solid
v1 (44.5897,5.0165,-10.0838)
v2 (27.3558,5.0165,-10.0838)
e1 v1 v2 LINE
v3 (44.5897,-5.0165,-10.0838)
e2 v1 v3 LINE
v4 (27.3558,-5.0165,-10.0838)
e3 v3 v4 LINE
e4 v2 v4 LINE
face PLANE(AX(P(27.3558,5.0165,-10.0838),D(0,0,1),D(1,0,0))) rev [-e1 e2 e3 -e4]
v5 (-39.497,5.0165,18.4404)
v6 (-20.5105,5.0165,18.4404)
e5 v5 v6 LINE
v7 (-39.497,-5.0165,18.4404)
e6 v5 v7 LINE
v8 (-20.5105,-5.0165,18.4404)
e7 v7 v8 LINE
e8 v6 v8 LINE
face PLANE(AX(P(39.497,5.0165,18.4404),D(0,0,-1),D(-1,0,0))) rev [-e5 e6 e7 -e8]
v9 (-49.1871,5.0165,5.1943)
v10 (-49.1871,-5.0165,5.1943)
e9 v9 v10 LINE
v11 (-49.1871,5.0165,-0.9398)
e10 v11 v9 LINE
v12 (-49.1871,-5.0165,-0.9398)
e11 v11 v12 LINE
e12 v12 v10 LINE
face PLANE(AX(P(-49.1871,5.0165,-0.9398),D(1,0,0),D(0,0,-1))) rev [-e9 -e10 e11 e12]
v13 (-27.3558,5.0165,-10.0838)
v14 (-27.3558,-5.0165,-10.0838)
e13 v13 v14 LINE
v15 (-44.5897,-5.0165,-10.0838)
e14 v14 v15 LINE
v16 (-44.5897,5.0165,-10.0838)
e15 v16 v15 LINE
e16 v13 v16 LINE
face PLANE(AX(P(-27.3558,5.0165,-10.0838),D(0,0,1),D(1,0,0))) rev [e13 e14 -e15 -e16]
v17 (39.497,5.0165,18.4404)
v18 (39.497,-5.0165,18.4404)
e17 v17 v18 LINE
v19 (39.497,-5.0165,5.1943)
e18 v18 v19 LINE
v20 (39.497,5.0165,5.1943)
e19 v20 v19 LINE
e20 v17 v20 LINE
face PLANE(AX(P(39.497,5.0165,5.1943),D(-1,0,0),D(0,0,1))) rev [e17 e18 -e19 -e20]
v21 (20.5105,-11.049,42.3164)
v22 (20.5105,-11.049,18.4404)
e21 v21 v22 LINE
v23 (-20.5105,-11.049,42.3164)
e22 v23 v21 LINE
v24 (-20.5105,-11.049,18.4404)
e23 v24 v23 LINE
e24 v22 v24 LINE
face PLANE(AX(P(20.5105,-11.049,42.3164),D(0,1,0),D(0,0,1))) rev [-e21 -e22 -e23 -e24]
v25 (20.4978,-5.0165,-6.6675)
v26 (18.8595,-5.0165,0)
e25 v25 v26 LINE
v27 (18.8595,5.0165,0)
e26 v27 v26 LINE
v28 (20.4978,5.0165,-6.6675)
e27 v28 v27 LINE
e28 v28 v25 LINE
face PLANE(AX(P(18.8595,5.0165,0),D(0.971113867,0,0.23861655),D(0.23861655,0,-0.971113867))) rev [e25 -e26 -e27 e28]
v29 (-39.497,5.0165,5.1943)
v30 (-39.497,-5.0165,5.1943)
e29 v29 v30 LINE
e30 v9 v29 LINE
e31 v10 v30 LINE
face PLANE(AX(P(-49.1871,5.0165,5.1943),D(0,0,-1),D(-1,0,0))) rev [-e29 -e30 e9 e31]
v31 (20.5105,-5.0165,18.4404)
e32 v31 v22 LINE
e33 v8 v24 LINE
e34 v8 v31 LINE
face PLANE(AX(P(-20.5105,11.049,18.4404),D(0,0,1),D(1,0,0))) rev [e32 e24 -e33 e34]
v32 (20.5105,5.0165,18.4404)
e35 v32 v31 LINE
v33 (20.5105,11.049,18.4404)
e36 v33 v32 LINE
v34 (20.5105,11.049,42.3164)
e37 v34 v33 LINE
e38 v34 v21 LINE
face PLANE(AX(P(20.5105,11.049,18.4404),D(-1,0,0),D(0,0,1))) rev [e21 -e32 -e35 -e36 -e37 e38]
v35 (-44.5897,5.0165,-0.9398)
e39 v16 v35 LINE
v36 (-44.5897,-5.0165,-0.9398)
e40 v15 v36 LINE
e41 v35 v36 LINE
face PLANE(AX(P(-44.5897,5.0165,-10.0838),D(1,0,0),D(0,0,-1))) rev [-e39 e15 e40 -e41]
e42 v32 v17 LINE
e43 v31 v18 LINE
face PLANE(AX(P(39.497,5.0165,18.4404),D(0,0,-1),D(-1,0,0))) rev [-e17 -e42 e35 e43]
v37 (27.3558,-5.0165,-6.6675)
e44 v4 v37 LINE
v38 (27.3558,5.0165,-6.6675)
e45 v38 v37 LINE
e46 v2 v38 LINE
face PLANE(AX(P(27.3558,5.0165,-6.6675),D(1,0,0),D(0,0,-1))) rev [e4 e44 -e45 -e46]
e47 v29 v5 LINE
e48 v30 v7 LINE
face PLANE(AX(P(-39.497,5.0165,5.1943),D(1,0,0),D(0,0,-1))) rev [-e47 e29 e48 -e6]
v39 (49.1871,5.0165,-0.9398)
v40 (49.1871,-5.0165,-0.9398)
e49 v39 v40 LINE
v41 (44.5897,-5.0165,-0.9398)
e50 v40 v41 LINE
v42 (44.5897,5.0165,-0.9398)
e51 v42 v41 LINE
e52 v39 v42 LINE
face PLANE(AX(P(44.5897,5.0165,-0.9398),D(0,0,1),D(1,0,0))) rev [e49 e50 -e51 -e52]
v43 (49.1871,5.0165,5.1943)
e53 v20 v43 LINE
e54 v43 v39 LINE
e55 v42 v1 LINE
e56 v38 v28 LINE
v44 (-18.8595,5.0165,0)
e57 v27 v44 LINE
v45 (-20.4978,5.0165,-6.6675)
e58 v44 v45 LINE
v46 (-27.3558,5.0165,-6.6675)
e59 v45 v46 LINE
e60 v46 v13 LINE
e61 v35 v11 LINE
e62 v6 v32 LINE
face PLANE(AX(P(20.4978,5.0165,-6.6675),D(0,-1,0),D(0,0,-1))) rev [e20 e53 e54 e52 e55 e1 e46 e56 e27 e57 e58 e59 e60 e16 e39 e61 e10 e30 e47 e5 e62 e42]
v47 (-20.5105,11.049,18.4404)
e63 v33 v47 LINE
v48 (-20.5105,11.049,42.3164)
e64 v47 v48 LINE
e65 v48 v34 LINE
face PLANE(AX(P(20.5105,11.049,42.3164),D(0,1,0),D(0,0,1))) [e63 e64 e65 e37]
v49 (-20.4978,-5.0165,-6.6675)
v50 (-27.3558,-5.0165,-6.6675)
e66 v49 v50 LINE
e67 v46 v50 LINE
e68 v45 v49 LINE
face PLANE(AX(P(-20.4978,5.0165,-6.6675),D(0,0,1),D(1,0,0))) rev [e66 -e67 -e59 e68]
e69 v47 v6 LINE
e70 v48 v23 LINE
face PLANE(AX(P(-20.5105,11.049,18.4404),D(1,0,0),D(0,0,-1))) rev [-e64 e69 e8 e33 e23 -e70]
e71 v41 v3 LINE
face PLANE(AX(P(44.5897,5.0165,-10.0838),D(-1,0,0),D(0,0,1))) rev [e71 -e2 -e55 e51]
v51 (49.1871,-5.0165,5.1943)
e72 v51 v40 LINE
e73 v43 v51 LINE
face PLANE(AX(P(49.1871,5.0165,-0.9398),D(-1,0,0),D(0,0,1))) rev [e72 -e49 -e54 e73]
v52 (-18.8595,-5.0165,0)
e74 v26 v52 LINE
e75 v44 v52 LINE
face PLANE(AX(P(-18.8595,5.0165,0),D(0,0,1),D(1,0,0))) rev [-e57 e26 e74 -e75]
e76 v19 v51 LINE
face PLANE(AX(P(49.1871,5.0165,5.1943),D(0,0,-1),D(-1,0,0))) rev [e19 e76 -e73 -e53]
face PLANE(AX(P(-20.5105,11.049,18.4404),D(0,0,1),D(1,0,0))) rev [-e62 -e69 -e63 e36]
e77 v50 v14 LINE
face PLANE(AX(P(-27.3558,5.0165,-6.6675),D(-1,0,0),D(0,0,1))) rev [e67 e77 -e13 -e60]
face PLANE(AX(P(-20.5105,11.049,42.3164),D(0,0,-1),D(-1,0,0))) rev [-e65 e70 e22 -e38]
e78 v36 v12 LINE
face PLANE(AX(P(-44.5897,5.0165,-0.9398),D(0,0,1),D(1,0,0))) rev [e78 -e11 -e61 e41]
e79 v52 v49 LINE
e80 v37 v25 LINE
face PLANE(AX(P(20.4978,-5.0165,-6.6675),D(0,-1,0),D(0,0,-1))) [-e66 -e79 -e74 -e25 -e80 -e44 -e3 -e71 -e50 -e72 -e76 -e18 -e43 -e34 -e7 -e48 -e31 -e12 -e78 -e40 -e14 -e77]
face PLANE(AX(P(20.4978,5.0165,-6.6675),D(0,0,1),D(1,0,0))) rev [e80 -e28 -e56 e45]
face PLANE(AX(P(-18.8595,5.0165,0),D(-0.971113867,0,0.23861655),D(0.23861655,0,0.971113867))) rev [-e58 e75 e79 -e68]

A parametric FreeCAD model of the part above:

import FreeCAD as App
import Part
import Sketcher
from FreeCAD import Vector
Q = App.Units.Quantity

doc = App.newDocument("Part")
body = doc.addObject("PartDesign::Body", "Body")

sketch1 = body.newObject("Sketcher::SketchObject", "Sketch")
sketch1.AttachmentSupport = (doc.getObject("XZ_Plane"), [""])
sketch1.MapMode = "FlatFace"
sketch1.addGeometry(Part.LineSegment(Vector(18.8595, 0, 0), Vector(-18.8595, 0, 0)), False)
sketch1.addGeometry(Part.LineSegment(Vector(-18.8595, 0, 0), Vector(-20.4978, -6.6675, 0)), False)
sketch1.addGeometry(Part.LineSegment(Vector(-20.4978, -6.6675, 0), Vector(-27.3558, -6.6675, 0)), False)
sketch1.addGeometry(Part.LineSegment(Vector(-27.3558, -6.6675, 0), Vector(-27.3558, -10.0838, 0)), False)
sketch1.addGeometry(Part.LineSegment(Vector(-27.3558, -10.0838, 0), Vector(-44.5897, -10.0838, 0)), False)
sketch1.addGeometry(Part.LineSegment(Vector(-44.5897, -10.0838, 0), Vector(-44.5897, -0.9398, 0)), False)
sketch1.addGeometry(Part.LineSegment(Vector(-44.5897, -0.9398, 0), Vector(-49.1871, -0.9398, 0)), False)
sketch1.addGeometry(Part.LineSegment(Vector(-49.1871, -0.9398, 0), Vector(-49.1871, 5.1943, 0)), False)
sketch1.addGeometry(Part.LineSegment(Vector(-49.1871, 5.1943, 0), Vector(-39.497, 5.1943, 0)), False)
sketch1.addGeometry(Part.LineSegment(Vector(-39.497, 5.1943, 0), Vector(-39.497, 18.4404, 0)), False)
sketch1.addGeometry(Part.LineSegment(Vector(-39.497, 18.4404, 0), Vector(39.497, 18.4404, 0)), False)
sketch1.addGeometry(Part.LineSegment(Vector(39.497, 18.4404, 0), Vector(39.497, 5.1943, 0)), False)
sketch1.addGeometry(Part.LineSegment(Vector(39.497, 5.1943, 0), Vector(49.1871, 5.1943, 0)), False)
sketch1.addGeometry(Part.LineSegment(Vector(49.1871, 5.1943, 0), Vector(49.1871, -0.9398, 0)), False)
sketch1.addGeometry(Part.LineSegment(Vector(49.1871, -0.9398, 0), Vector(44.5897, -0.9398, 0)), False)
sketch1.addGeometry(Part.LineSegment(Vector(44.5897, -0.9398, 0), Vector(44.5897, -10.0838, 0)), False)
sketch1.addGeometry(Part.LineSegment(Vector(44.5897, -10.0838, 0), Vector(27.3558, -10.0838, 0)), False)
sketch1.addGeometry(Part.LineSegment(Vector(27.3558, -10.0838, 0), Vector(27.3558, -6.6675, 0)), False)
sketch1.addGeometry(Part.LineSegment(Vector(27.3558, -6.6675, 0), Vector(20.4978, -6.6675, 0)), False)
sketch1.addGeometry(Part.LineSegment(Vector(20.4978, -6.6675, 0), Vector(18.8595, 0, 0)), False)
sketch1.addConstraint(Sketcher.Constraint("Coincident", 0, 2, 1, 1))
sketch1.addConstraint(Sketcher.Constraint("Coincident", 1, 2, 2, 1))
sketch1.addConstraint(Sketcher.Constraint("Coincident", 2, 2, 3, 1))
sketch1.addConstraint(Sketcher.Constraint("Coincident", 3, 2, 4, 1))
sketch1.addConstraint(Sketcher.Constraint("Coincident", 4, 2, 5, 1))
sketch1.addConstraint(Sketcher.Constraint("Coincident", 5, 2, 6, 1))
sketch1.addConstraint(Sketcher.Constraint("Coincident", 6, 2, 7, 1))
sketch1.addConstraint(Sketcher.Constraint("Coincident", 7, 2, 8, 1))
sketch1.addConstraint(Sketcher.Constraint("Coincident", 8, 2, 9, 1))
sketch1.addConstraint(Sketcher.Constraint("Coincident", 9, 2, 10, 1))
sketch1.addConstraint(Sketcher.Constraint("Coincident", 10, 2, 11, 1))
sketch1.addConstraint(Sketcher.Constraint("Coincident", 11, 2, 12, 1))
sketch1.addConstraint(Sketcher.Constraint("Coincident", 12, 2, 13, 1))
sketch1.addConstraint(Sketcher.Constraint("Coincident", 13, 2, 14, 1))
sketch1.addConstraint(Sketcher.Constraint("Coincident", 14, 2, 15, 1))
sketch1.addConstraint(Sketcher.Constraint("Coincident", 15, 2, 16, 1))
sketch1.addConstraint(Sketcher.Constraint("Coincident", 16, 2, 17, 1))
sketch1.addConstraint(Sketcher.Constraint("Coincident", 17, 2, 18, 1))
sketch1.addConstraint(Sketcher.Constraint("Coincident", 18, 2, 19, 1))
sketch1.addConstraint(Sketcher.Constraint("Coincident", 19, 2, 0, 1))
sketch1.addConstraint(Sketcher.Constraint("Horizontal", 0))
sketch1.addConstraint(Sketcher.Constraint("Horizontal", 2))
sketch1.addConstraint(Sketcher.Constraint("Vertical", 3))
sketch1.addConstraint(Sketcher.Constraint("Horizontal", 4))
sketch1.addConstraint(Sketcher.Constraint("Vertical", 5))
sketch1.addConstraint(Sketcher.Constraint("Horizontal", 6))
sketch1.addConstraint(Sketcher.Constraint("Vertical", 7))
sketch1.addConstraint(Sketcher.Constraint("Horizontal", 8))
sketch1.addConstraint(Sketcher.Constraint("Vertical", 9))
sketch1.addConstraint(Sketcher.Constraint("Horizontal", 10))
sketch1.addConstraint(Sketcher.Constraint("Vertical", 11))
sketch1.addConstraint(Sketcher.Constraint("Horizontal", 12))
sketch1.addConstraint(Sketcher.Constraint("Vertical", 13))
sketch1.addConstraint(Sketcher.Constraint("Horizontal", 14))
sketch1.addConstraint(Sketcher.Constraint("Vertical", 15))
sketch1.addConstraint(Sketcher.Constraint("Horizontal", 16))
sketch1.addConstraint(Sketcher.Constraint("Vertical", 17))
sketch1.addConstraint(Sketcher.Constraint("Horizontal", 18))
sketch1.addConstraint(Sketcher.Constraint("Symmetric", 0, 2, 19, 2, -1, 1))
sketch1.addConstraint(Sketcher.Constraint("Symmetric", 8, 2, 11, 2, -2))
sketch1.addConstraint(Sketcher.Constraint("Symmetric", 6, 2, 13, 2, -2))
sketch1.addConstraint(Sketcher.Constraint("Symmetric", 4, 2, 15, 2, -2))
sketch1.addConstraint(Sketcher.Constraint("Symmetric", 2, 2, 17, 2, -2))
sketch1.addConstraint(Sketcher.Constraint("Equal", 2, 18))
sketch1.addConstraint(Sketcher.Constraint("DistanceX", 2, 2, 2, 1, Q("0.27 in")))
sketch1.addConstraint(Sketcher.Constraint("DistanceX", 10, 1, 10, 2, Q("3.11 in")))
sketch1.addConstraint(Sketcher.Constraint("DistanceY", 5, 1, 5, 2, Q("0.36 in")))
sketch1.addConstraint(Sketcher.Constraint("DistanceX", 0, 2, 0, 1, Q("1.485 in")))
sketch1.addConstraint(Sketcher.Constraint("DistanceX", 6, 2, 6, 1, Q("0.181 in")))
sketch1.addConstraint(Sketcher.Constraint("DistanceX", 4, 2, 4, 1, Q("0.6785 in")))
sketch1.addConstraint(Sketcher.Constraint("DistanceX", 8, 1, 8, 2, Q("0.3815 in")))
sketch1.addConstraint(Sketcher.Constraint("DistanceY", 3, 2, 3, 1, Q("0.1345 in")))
sketch1.addConstraint(Sketcher.Constraint("DistanceY", 7, 1, 7, 2, Q("0.2415 in")))
sketch1.addConstraint(Sketcher.Constraint("DistanceY", 9, 1, 9, 2, Q("0.5215 in")))
sketch1.addConstraint(Sketcher.Constraint("DistanceY", 3, 2, -1, 1, Q("0.397 in")))
pad1 = body.newObject("PartDesign::Pad", "Pad")
pad1.Profile = sketch1
pad1.Length = Q("0.395 in")
pad1.Midplane = True

sketch2 = body.newObject("Sketcher::SketchObject", "Sketch001")
sketch2.AttachmentSupport = (doc.getObject("XZ_Plane"), [""])
sketch2.MapMode = "FlatFace"
sketch2.addGeometry(Part.LineSegment(Vector(-20.5105, 18.4404, 0), Vector(-20.5105, 42.3164, 0)), False)
sketch2.addGeometry(Part.LineSegment(Vector(-20.5105, 42.3164, 0), Vector(20.5105, 42.3164, 0)), False)
sketch2.addGeometry(Part.LineSegment(Vector(20.5105, 42.3164, 0), Vector(20.5105, 18.4404, 0)), False)
sketch2.addGeometry(Part.LineSegment(Vector(20.5105, 18.4404, 0), Vector(-20.5105, 18.4404, 0)), False)
sketch2.addConstraint(Sketcher.Constraint("Coincident", 0, 2, 1, 1))
sketch2.addConstraint(Sketcher.Constraint("Coincident", 1, 2, 2, 1))
sketch2.addConstraint(Sketcher.Constraint("Coincident", 2, 2, 3, 1))
sketch2.addConstraint(Sketcher.Constraint("Coincident", 3, 2, 0, 1))
sketch2.addConstraint(Sketcher.Constraint("Vertical", 0))
sketch2.addConstraint(Sketcher.Constraint("Horizontal", 1))
sketch2.addConstraint(Sketcher.Constraint("Vertical", 2))
sketch2.addConstraint(Sketcher.Constraint("Horizontal", 3))
sketch2.addConstraint(Sketcher.Constraint("DistanceY", 0, 1, 0, 2, Q("0.94 in")))
sketch2.addConstraint(Sketcher.Constraint("DistanceX", 1, 1, 1, 2, Q("1.615 in")))
sketch2.addConstraint(Sketcher.Constraint("DistanceY", -1, 1, 0, 2, Q("1.666 in")))
sketch2.addConstraint(Sketcher.Constraint("DistanceX", 0, 2, -1, 1, Q("0.8075 in")))
pad2 = body.newObject("PartDesign::Pad", "Pad001")
pad2.Profile = sketch2
pad2.Length = Q("0.87 in")
pad2.Midplane = True

doc.recompute()
